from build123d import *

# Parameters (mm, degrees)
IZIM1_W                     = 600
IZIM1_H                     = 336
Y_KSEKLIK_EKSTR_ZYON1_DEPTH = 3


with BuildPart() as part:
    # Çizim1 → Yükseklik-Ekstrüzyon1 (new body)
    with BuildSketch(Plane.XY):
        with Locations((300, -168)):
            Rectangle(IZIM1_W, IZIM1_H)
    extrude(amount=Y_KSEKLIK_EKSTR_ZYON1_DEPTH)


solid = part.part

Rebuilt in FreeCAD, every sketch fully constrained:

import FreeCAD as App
import Part
import Sketcher
from FreeCAD import Vector
Q = App.Units.Quantity

doc = App.newDocument("Part")
body = doc.addObject("PartDesign::Body", "Body")

# Sketch on XY plane
sketch1 = doc.addObject("Sketcher::SketchObject", "Sketch")
body.addObject(sketch1)
sketch1.AttachmentSupport = (doc.XY_Plane, [""])
sketch1.MapMode = "FlatFace"
sketch1.addGeometry([
    Part.LineSegment(Vector(0, 0, 0), Vector(0, -336, 0)),
    Part.LineSegment(Vector(0, -336, 0), Vector(600, -336, 0)),
    Part.LineSegment(Vector(600, -336, 0), Vector(600, 0, 0)),
    Part.LineSegment(Vector(600, 0, 0), Vector(0, 0, 0)),
], False)
sketch1.addConstraint([
    Sketcher.Constraint("Coincident", 0, 2, 1, 1),
    Sketcher.Constraint("Coincident", 1, 2, 2, 1),
    Sketcher.Constraint("Coincident", 2, 2, 3, 1),
    Sketcher.Constraint("Coincident", 3, 2, 0, 1),
    Sketcher.Constraint("Vertical", 0),
    Sketcher.Constraint("Horizontal", 1),
    Sketcher.Constraint("Vertical", 2),
    Sketcher.Constraint("Horizontal", 3),
    Sketcher.Constraint("Coincident", 3, 2, -1, 1),
    Sketcher.Constraint("DistanceX", 1, 1, 1, 2, Q("600 mm")),
    Sketcher.Constraint("DistanceY", 0, 2, 0, 1, Q("336 mm")),
])
pad1 = doc.addObject("PartDesign::Pad", "Pad")
body.addObject(pad1)
pad1.Profile = sketch1
pad1.Length = 3

doc.recompute()
